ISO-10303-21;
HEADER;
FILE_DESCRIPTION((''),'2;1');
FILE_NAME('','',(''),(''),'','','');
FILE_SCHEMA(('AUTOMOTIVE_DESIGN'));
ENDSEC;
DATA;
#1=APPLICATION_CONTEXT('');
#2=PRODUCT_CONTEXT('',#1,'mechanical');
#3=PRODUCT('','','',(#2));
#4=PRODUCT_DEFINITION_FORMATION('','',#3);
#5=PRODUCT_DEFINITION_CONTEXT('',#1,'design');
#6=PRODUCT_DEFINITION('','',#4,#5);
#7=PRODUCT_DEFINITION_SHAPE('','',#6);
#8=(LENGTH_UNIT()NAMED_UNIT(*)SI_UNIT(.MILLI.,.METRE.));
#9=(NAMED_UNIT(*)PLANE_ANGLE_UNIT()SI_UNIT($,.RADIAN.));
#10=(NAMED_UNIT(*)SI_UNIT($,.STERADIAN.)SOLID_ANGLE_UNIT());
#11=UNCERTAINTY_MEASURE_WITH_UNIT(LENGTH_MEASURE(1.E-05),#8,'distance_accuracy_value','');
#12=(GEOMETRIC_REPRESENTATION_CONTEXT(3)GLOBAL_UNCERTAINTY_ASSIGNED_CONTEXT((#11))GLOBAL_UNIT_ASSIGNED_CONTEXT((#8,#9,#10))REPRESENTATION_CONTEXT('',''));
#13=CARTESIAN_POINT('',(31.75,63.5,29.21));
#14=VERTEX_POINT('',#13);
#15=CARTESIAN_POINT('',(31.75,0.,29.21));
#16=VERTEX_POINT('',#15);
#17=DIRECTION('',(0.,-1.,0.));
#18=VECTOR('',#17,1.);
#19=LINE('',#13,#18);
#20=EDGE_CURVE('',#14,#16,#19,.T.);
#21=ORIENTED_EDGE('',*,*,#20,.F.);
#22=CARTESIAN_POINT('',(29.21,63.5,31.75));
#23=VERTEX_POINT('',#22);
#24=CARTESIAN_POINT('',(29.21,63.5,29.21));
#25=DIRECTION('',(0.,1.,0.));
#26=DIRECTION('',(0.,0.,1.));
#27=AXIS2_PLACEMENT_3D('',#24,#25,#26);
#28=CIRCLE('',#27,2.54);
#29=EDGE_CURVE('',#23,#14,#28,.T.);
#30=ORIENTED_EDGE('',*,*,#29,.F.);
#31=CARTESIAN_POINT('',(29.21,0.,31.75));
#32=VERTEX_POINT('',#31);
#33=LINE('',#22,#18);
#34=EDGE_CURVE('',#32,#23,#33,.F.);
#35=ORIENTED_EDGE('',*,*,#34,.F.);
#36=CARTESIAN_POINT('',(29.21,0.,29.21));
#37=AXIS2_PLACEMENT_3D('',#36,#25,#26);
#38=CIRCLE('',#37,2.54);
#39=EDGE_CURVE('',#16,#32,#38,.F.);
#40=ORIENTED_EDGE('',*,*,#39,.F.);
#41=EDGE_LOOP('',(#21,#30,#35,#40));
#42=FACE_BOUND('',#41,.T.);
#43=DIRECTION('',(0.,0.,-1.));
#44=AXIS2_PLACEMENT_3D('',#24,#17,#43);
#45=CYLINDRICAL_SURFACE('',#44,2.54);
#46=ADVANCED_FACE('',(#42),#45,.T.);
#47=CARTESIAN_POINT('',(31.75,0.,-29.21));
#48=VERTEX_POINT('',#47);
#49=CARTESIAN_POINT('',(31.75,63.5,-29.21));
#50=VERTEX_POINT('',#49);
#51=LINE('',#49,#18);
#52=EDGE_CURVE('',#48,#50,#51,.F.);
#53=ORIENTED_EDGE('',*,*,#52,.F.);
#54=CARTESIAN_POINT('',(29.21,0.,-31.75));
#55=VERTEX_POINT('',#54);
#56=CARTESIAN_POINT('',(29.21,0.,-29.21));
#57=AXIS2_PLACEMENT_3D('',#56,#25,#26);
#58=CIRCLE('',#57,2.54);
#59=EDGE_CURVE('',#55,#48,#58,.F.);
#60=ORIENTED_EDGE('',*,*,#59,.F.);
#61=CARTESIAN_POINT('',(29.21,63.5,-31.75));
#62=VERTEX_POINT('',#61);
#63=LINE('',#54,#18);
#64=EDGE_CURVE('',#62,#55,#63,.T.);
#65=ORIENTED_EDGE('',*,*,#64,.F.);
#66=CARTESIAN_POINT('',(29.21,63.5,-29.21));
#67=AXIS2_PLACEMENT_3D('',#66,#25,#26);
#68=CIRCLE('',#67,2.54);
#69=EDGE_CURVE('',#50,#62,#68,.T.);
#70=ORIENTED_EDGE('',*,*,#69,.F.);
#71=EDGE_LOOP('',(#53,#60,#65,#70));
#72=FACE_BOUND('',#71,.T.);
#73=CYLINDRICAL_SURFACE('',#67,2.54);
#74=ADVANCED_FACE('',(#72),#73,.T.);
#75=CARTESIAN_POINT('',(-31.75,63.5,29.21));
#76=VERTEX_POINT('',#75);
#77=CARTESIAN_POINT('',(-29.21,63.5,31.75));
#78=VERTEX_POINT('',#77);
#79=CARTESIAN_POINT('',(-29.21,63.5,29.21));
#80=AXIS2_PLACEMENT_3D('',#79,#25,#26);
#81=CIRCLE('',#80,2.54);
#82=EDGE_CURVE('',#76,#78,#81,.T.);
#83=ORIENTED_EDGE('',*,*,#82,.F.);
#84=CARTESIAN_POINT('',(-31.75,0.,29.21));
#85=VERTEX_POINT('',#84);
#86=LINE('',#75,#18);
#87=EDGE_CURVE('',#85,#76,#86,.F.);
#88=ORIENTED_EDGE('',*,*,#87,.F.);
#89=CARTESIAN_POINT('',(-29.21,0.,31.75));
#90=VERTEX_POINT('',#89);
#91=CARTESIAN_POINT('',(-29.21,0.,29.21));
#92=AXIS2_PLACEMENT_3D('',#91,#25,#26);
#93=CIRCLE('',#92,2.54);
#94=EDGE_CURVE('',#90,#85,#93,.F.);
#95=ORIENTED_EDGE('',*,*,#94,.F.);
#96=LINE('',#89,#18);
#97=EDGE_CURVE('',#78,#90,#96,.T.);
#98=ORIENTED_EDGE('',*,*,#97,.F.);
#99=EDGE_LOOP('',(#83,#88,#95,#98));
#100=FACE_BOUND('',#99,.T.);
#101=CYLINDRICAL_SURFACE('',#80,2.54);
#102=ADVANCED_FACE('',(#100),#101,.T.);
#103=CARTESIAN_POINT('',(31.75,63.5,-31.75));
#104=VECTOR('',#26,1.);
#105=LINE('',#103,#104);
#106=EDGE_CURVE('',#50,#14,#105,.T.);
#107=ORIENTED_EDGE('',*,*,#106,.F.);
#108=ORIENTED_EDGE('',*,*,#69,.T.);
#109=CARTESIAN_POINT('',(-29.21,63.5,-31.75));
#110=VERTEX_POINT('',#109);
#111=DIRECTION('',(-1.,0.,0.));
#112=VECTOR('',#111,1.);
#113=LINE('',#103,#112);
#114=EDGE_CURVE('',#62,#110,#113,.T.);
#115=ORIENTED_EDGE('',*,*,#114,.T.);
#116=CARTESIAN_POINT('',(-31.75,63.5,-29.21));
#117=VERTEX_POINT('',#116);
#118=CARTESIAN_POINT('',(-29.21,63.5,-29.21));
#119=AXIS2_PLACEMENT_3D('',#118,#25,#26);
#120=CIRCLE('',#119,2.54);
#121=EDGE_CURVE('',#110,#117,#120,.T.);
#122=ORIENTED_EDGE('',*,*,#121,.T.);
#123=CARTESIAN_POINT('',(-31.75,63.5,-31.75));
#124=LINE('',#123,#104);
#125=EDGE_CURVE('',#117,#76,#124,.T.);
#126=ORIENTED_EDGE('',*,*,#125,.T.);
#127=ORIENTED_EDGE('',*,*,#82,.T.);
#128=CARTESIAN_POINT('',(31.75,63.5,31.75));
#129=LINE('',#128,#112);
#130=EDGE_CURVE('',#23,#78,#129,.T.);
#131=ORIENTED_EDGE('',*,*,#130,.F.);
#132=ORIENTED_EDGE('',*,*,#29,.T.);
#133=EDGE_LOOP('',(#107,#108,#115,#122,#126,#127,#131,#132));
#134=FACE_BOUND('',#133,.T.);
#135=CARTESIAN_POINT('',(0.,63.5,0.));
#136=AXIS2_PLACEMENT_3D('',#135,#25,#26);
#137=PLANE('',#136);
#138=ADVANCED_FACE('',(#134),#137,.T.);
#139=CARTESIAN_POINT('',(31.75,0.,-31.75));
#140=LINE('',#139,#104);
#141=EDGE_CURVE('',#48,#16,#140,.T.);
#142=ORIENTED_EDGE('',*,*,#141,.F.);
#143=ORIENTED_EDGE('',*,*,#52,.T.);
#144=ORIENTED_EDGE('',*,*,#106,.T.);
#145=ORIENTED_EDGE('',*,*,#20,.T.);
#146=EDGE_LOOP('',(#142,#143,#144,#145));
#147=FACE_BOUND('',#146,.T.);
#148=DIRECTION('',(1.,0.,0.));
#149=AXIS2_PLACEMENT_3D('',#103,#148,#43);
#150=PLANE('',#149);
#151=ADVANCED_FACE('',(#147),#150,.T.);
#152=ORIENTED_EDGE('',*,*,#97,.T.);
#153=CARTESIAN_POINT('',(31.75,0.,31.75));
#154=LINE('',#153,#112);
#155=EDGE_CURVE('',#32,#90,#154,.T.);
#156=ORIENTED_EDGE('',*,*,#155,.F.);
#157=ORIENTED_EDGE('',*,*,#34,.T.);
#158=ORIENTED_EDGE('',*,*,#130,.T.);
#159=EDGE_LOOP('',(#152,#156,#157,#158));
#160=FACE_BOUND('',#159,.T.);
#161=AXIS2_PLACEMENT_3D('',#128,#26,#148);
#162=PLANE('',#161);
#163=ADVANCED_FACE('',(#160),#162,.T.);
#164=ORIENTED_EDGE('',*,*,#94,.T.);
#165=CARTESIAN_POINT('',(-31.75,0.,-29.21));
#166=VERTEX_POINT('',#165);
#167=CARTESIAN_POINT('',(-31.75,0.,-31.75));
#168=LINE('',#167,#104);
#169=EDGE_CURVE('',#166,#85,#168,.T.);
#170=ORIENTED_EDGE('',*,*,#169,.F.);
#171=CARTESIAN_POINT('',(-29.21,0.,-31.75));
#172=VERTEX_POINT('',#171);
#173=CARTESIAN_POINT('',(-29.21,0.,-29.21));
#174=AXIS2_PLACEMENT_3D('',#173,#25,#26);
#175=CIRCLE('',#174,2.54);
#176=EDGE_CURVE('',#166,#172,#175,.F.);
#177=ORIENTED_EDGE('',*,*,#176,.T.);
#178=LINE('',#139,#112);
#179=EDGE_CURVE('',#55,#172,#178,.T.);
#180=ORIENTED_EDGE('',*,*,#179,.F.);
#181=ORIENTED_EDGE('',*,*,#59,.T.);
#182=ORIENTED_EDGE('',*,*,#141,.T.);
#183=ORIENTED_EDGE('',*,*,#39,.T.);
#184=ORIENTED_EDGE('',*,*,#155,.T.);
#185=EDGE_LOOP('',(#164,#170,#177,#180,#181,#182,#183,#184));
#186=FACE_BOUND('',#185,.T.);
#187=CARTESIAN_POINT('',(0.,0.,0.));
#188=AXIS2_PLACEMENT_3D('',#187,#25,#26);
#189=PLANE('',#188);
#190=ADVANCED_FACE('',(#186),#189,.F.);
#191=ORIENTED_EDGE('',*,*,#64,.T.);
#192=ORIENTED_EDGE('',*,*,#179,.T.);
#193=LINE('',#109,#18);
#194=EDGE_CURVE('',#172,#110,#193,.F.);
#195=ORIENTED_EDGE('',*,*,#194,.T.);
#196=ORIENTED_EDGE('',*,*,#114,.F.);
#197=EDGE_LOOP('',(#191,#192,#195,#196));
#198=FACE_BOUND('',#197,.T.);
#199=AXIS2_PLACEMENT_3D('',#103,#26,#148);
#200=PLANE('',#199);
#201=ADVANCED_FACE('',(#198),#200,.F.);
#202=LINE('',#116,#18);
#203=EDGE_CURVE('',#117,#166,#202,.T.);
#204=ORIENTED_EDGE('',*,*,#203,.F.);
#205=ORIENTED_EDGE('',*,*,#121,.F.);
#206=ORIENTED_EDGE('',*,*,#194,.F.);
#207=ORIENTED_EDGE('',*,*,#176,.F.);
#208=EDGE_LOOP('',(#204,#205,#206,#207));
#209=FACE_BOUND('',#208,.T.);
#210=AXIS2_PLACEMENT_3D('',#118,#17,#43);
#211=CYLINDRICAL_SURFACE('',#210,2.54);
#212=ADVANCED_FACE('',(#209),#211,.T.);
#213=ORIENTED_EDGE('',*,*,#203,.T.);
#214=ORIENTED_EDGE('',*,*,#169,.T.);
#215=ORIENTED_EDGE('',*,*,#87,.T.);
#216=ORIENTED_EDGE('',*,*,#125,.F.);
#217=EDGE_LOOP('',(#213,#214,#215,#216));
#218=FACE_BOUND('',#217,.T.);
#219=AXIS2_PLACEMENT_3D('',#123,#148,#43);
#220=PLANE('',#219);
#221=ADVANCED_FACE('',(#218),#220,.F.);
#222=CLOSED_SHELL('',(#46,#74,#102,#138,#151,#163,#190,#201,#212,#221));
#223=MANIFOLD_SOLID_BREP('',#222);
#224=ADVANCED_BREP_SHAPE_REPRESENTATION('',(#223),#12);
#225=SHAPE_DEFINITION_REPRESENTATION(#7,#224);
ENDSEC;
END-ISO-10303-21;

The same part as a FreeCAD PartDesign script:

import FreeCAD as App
import Part
import Sketcher

V = App.Vector
Q = App.Units.Quantity


def edges_at(feature, points):
    """Names of the edges that pass closest to the given points."""
    edges = feature.Shape.Edges
    near = lambda p: min(range(len(edges)), key=lambda i: edges[i].distToShape(Part.Vertex(*p))[0])
    return sorted({f"Edge{near(p) + 1}" for p in points})

doc = App.newDocument("Part")
body = doc.addObject("PartDesign::Body", "Body")

# Sketch on XZ plane
sketch1 = body.newObject("Sketcher::SketchObject", "Sketch")
sketch1.AttachmentSupport = (doc.getObject("XZ_Plane"), [""])
sketch1.MapMode = "FlatFace"
sketch1.addGeometry([
    Part.LineSegment(V(-31.75, -31.75, 0), V(-31.75, 31.75, 0)),
    Part.LineSegment(V(-31.75, 31.75, 0), V(31.75, 31.75, 0)),
    Part.LineSegment(V(31.75, 31.75, 0), V(31.75, -31.75, 0)),
    Part.LineSegment(V(31.75, -31.75, 0), V(-31.75, -31.75, 0)),
], False)
sketch1.addConstraint([
    Sketcher.Constraint("Coincident", 0, 2, 1, 1),
    Sketcher.Constraint("Coincident", 1, 2, 2, 1),
    Sketcher.Constraint("Coincident", 2, 2, 3, 1),
    Sketcher.Constraint("Coincident", 3, 2, 0, 1),
    Sketcher.Constraint("Vertical", 0),
    Sketcher.Constraint("Horizontal", 1),
    Sketcher.Constraint("Vertical", 2),
    Sketcher.Constraint("Horizontal", 3),
    Sketcher.Constraint("Symmetric", 0, 2, 2, 2, -1, 1),
    Sketcher.Constraint("Equal", 3, 0),
    Sketcher.Constraint("DistanceX", 1, 1, 1, 2, Q("2.5 in")),
])
pad1 = body.newObject("PartDesign::Pad", "Pad")
pad1.Profile = sketch1
pad1.Length = Q("2.5 in")
pad1.Reversed = True
doc.recompute()

fillet = body.newObject("PartDesign::Fillet", "Fillet")
fillet.Base = (pad1, edges_at(pad1, [
    (31.75, 31.75, 31.75),
    (31.75, 31.75, -31.75),
    (-31.75, 31.75, -31.75),
    (-31.75, 31.75, 31.75),
]))
fillet.Radius = Q("0.1 in")

doc.recompute()
